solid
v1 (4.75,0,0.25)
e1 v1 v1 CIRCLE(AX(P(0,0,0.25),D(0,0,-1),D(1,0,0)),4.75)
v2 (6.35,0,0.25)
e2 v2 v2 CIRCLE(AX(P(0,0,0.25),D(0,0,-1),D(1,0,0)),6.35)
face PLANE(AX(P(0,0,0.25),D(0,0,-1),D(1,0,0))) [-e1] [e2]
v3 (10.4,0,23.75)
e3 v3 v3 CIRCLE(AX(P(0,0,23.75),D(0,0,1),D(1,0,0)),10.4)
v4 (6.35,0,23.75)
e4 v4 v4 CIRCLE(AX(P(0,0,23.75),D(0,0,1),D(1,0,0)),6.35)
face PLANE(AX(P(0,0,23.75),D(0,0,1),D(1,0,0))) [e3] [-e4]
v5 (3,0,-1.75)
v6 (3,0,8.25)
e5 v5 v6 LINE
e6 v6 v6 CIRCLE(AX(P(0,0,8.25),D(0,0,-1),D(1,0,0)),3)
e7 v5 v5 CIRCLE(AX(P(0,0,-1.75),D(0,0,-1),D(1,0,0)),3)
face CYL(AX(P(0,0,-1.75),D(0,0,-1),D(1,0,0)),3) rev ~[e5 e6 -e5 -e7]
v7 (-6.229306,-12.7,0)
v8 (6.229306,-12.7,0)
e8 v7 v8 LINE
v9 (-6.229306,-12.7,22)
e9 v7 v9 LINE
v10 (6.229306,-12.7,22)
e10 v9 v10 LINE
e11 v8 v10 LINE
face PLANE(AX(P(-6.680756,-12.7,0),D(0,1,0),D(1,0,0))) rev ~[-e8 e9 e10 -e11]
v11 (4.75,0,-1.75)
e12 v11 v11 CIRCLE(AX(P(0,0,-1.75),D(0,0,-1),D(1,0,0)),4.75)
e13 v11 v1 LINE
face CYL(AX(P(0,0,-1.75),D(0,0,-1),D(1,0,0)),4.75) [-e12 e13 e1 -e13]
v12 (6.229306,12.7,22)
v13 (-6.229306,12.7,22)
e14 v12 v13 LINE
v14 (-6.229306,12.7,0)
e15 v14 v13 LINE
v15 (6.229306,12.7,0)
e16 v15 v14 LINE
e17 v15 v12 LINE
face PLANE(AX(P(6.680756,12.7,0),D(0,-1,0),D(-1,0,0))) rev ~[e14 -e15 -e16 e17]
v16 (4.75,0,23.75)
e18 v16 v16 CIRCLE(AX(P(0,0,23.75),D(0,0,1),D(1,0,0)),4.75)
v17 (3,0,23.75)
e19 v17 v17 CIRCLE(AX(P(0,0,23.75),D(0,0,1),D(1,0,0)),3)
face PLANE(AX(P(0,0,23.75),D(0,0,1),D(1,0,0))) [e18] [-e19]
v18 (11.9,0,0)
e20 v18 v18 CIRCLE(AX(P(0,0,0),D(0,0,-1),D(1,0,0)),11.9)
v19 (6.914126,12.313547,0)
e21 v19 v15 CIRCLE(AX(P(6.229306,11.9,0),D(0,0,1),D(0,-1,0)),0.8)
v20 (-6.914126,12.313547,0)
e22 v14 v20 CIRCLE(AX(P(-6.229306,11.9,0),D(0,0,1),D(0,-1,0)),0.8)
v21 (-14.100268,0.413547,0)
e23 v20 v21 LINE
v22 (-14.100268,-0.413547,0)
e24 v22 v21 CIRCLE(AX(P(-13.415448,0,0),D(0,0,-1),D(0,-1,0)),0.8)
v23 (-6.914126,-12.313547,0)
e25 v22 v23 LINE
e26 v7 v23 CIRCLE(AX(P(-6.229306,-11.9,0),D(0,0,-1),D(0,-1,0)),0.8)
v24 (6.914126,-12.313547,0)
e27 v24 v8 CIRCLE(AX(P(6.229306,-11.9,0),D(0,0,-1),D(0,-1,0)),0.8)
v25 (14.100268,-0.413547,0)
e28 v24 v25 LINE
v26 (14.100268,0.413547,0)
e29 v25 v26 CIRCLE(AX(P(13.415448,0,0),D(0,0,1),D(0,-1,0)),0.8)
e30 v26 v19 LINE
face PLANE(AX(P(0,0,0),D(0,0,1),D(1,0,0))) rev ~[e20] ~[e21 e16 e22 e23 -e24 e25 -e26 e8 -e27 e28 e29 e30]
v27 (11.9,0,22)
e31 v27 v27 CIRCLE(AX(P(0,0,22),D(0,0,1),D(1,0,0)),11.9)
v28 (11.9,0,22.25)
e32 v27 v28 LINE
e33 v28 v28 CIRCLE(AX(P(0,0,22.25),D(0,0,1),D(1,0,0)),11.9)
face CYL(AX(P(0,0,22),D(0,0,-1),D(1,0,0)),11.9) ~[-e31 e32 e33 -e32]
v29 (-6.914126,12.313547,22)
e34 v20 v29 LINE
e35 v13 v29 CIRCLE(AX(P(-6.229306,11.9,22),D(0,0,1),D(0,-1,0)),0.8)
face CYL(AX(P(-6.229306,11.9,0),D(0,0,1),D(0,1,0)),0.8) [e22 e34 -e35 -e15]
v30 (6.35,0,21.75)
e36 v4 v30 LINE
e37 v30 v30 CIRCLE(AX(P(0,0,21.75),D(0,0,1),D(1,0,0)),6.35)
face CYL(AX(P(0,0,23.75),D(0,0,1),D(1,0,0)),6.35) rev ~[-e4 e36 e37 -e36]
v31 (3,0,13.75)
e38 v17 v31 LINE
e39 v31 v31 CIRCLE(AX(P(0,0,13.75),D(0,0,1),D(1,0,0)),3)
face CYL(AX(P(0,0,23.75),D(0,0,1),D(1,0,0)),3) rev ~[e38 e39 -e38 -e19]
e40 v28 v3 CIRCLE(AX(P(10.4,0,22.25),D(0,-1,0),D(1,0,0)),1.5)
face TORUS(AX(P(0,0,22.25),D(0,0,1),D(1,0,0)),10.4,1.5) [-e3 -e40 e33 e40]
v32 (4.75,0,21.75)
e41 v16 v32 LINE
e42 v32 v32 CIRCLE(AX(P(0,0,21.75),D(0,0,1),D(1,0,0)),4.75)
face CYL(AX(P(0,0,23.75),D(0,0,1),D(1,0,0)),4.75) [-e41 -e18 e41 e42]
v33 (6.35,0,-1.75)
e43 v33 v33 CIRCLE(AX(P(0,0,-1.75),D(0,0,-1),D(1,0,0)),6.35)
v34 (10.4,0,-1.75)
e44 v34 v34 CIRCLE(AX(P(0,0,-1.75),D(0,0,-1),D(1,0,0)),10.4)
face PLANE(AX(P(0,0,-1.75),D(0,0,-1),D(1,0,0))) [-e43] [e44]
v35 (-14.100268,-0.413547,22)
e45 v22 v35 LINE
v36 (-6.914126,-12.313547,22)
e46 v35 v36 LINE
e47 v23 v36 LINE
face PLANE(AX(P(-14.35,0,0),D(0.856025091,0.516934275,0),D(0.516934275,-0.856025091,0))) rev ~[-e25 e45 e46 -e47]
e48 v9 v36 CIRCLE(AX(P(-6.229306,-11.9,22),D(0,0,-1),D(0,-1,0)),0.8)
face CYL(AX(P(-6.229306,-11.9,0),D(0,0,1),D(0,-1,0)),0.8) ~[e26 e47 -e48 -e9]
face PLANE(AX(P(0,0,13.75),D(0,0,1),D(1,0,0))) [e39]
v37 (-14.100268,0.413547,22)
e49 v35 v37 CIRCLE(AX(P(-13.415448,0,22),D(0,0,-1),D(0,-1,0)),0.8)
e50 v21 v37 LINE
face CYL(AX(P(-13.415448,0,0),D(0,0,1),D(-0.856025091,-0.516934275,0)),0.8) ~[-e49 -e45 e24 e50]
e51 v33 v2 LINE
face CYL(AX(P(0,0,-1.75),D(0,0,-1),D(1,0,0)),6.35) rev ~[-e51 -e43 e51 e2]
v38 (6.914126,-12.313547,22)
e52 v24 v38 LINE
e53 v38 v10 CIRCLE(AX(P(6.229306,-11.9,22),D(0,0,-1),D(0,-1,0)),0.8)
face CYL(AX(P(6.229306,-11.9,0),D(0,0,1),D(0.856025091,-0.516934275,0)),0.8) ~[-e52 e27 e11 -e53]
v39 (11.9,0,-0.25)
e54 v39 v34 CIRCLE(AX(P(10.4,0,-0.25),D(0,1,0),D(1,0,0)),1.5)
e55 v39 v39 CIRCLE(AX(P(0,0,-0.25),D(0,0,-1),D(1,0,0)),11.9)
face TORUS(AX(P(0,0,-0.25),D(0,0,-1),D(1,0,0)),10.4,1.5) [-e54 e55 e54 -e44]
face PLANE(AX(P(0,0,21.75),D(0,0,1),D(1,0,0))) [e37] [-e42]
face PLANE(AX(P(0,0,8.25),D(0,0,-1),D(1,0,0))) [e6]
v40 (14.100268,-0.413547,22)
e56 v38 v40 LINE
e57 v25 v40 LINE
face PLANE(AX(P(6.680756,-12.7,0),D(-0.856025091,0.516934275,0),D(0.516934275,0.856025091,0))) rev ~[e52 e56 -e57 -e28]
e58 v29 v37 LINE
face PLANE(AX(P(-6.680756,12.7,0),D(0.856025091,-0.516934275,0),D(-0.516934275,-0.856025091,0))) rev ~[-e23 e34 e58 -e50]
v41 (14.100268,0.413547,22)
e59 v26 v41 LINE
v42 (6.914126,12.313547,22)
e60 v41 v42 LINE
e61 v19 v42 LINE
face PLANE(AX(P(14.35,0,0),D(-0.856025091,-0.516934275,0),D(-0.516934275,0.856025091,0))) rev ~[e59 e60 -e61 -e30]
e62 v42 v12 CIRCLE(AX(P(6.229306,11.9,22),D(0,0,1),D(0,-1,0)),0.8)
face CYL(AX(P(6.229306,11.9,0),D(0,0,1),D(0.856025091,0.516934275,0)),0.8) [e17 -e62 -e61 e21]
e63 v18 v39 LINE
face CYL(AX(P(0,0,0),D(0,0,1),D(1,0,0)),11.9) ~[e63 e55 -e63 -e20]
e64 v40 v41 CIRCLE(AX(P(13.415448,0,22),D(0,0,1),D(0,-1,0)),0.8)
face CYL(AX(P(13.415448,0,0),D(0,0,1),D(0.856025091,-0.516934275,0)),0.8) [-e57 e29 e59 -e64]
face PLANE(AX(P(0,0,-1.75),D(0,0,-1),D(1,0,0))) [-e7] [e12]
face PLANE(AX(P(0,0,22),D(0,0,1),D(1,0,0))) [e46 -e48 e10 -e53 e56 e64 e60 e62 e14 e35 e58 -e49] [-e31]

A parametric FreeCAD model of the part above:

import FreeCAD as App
import Part
import Sketcher


def edges_at(feature, points):
    """Names of the edges that pass closest to the given points."""
    edges = feature.Shape.Edges
    near = lambda p: min(range(len(edges)), key=lambda i: edges[i].distToShape(Part.Vertex(*p))[0])
    return sorted({f"Edge{near(p) + 1}" for p in points})

doc = App.newDocument("Part")
params = doc.addObject("Spreadsheet::Sheet", "Params")
for row, (alias, value) in enumerate([
    ("pad1_length", "22 mm"),
    ("sketch2_diameter", "23.8 mm"),
    ("pad2_length", "1.75 mm"),
    ("sketch3_diameter", "23.8 mm"),
    ("pad3_length", "1.75 mm"),
    ("sketch4_diameter", "12.7 mm"),
    ("sketch4_diameter2", "9.5 mm"),
    ("pocket1_length", "2 mm"),
    ("sketch5_diameter", "12.7 mm"),
    ("sketch5_diameter2", "9.5 mm"),
    ("pocket2_length", "2 mm"),
    ("sketch6_diameter", "6 mm"),
    ("pocket3_length", "10 mm"),
    ("sketch7_diameter", "6 mm"),
    ("pocket4_length", "10 mm"),
    ("fillet_radius", "1.5 mm"),
    ("fillet2_radius", "0.8 mm"),
], start=1):
    params.set(f"A{row}", alias)
    params.set(f"B{row}", "=" + value)
    params.setAlias(f"B{row}", alias)

body = doc.addObject("PartDesign::Body", "Body")

# Sketch on XY plane
sketch1 = doc.addObject("Sketcher::SketchObject", "Sketch")
body.addObject(sketch1)
sketch1.AttachmentSupport = (doc.XY_Plane, [""])
sketch1.MapMode = "FlatFace"
sketch1.addGeometry(Part.LineSegment(App.Vector(7, -13, 0), App.Vector(14, 0, 0)), False)
sketch1.addGeometry(Part.LineSegment(App.Vector(14, 0, 0), App.Vector(7, 13, 0)), False)
sketch1.addGeometry(Part.LineSegment(App.Vector(7, 13, 0), App.Vector(-7, 13, 0)), False)
sketch1.addGeometry(Part.LineSegment(App.Vector(-7, 13, 0), App.Vector(-14, 0, 0)), False)
sketch1.addGeometry(Part.LineSegment(App.Vector(-14, 0, 0), App.Vector(-7, -13, 0)), False)
sketch1.addGeometry(Part.LineSegment(App.Vector(-7, -13, 0), App.Vector(7, -13, 0)), False)
sketch1.addConstraint(Sketcher.Constraint("Coincident", 0, 2, 1, 1))
sketch1.addConstraint(Sketcher.Constraint("Coincident", 1, 2, 2, 1))
sketch1.addConstraint(Sketcher.Constraint("Coincident", 2, 2, 3, 1))
sketch1.addConstraint(Sketcher.Constraint("Coincident", 3, 2, 4, 1))
sketch1.addConstraint(Sketcher.Constraint("Coincident", 4, 2, 5, 1))
sketch1.addConstraint(Sketcher.Constraint("Coincident", 5, 2, 0, 1))
sketch1.addConstraint(Sketcher.Constraint("Horizontal", 2))
sketch1.addConstraint(Sketcher.Constraint("Horizontal", 5))
sketch1.addConstraint(Sketcher.Constraint("Symmetric", 0, 2, 3, 2, -1, 1))
sketch1.addConstraint(Sketcher.Constraint("Symmetric", 1, 2, 4, 2, -1, 1))
sketch1.addConstraint(Sketcher.Constraint("PointOnObject", 0, 2, -1))
sketch1.addConstraint(Sketcher.Constraint("Parallel", 0, 3))
sketch1.addConstraint(Sketcher.Constraint("Vertical", 2, 2, 4, 2))
sketch1.addConstraint(Sketcher.Constraint("DistanceY", -1, 1, 1, 2, 12.7))
sketch1.addConstraint(Sketcher.Constraint("DistanceX", 3, 2, 0, 2, 28.7))
sketch1.addConstraint(Sketcher.Constraint("DistanceX", 2, 2, 2, 1, 13.361512))
pad1 = doc.addObject("PartDesign::Pad", "Pad")
body.addObject(pad1)
pad1.Profile = sketch1
pad1.setExpression("Length", "Params.pad1_length")

# Sketch on XY plane
sketch2 = doc.addObject("Sketcher::SketchObject", "Sketch001")
body.addObject(sketch2)
sketch2.AttachmentSupport = (doc.XY_Plane, [""])
sketch2.MapMode = "FlatFace"
sketch2.AttachmentOffset = App.Placement(App.Vector(0, 0, 22), App.Rotation())
sketch2.addGeometry(Part.Circle(App.Vector(0, 0, 0), App.Vector(0, 0, 1), 12), False)
sketch2.addConstraint(Sketcher.Constraint("Coincident", 0, 3, -1, 1))
sketch2.addConstraint(Sketcher.Constraint("Diameter", 0, 23.8))
sketch2.setExpression("Constraints[1]", "Params.sketch2_diameter")
pad2 = doc.addObject("PartDesign::Pad", "Pad001")
body.addObject(pad2)
pad2.Profile = sketch2
pad2.setExpression("Length", "Params.pad2_length")

# Sketch on XY plane
sketch3 = doc.addObject("Sketcher::SketchObject", "Sketch002")
body.addObject(sketch3)
sketch3.AttachmentSupport = (doc.XY_Plane, [""])
sketch3.MapMode = "FlatFace"
sketch3.addGeometry(Part.Circle(App.Vector(0, 0, 0), App.Vector(0, 0, 1), 12), False)
sketch3.addConstraint(Sketcher.Constraint("Coincident", 0, 3, -1, 1))
sketch3.addConstraint(Sketcher.Constraint("Diameter", 0, 23.8))
sketch3.setExpression("Constraints[1]", "Params.sketch3_diameter")
pad3 = doc.addObject("PartDesign::Pad", "Pad002")
body.addObject(pad3)
pad3.Profile = sketch3
pad3.setExpression("Length", "Params.pad3_length")
pad3.Reversed = True

# Sketch on XY plane
sketch4 = doc.addObject("Sketcher::SketchObject", "Sketch003")
body.addObject(sketch4)
sketch4.AttachmentSupport = (doc.XY_Plane, [""])
sketch4.MapMode = "FlatFace"
sketch4.AttachmentOffset = App.Placement(App.Vector(0, 0, 23.75), App.Rotation())
sketch4.addGeometry(Part.Circle(App.Vector(0, 0, 0), App.Vector(0, 0, 1), 6.3), False)
sketch4.addGeometry(Part.Circle(App.Vector(0, 0, 0), App.Vector(0, 0, 1), 4.8), False)
sketch4.addConstraint(Sketcher.Constraint("Coincident", 0, 3, -1, 1))
sketch4.addConstraint(Sketcher.Constraint("Coincident", 1, 3, -1, 1))
sketch4.addConstraint(Sketcher.Constraint("Diameter", 0, 12.7))
sketch4.addConstraint(Sketcher.Constraint("Diameter", 1, 9.5))
sketch4.setExpression("Constraints[2]", "Params.sketch4_diameter")
sketch4.setExpression("Constraints[3]", "Params.sketch4_diameter2")
pocket1 = doc.addObject("PartDesign::Pocket", "Pocket")
body.addObject(pocket1)
pocket1.Profile = sketch4
pocket1.setExpression("Length", "Params.pocket1_length")

# Sketch on XY plane
sketch5 = doc.addObject("Sketcher::SketchObject", "Sketch004")
body.addObject(sketch5)
sketch5.AttachmentSupport = (doc.XY_Plane, [""])
sketch5.MapMode = "FlatFace"
sketch5.AttachmentOffset = App.Placement(App.Vector(0, 0, -1.75), App.Rotation())
sketch5.addGeometry(Part.Circle(App.Vector(0, 0, 0), App.Vector(0, 0, 1), 6.3), False)
sketch5.addGeometry(Part.Circle(App.Vector(0, 0, 0), App.Vector(0, 0, 1), 4.8), False)
sketch5.addConstraint(Sketcher.Constraint("Coincident", 0, 3, -1, 1))
sketch5.addConstraint(Sketcher.Constraint("Coincident", 1, 3, -1, 1))
sketch5.addConstraint(Sketcher.Constraint("Diameter", 0, 12.7))
sketch5.addConstraint(Sketcher.Constraint("Diameter", 1, 9.5))
sketch5.setExpression("Constraints[2]", "Params.sketch5_diameter")
sketch5.setExpression("Constraints[3]", "Params.sketch5_diameter2")
pocket2 = doc.addObject("PartDesign::Pocket", "Pocket001")
body.addObject(pocket2)
pocket2.Profile = sketch5
pocket2.setExpression("Length", "Params.pocket2_length")
pocket2.Reversed = True

# Sketch on XY plane
sketch6 = doc.addObject("Sketcher::SketchObject", "Sketch005")
body.addObject(sketch6)
sketch6.AttachmentSupport = (doc.XY_Plane, [""])
sketch6.MapMode = "FlatFace"
sketch6.AttachmentOffset = App.Placement(App.Vector(0, 0, -1.75), App.Rotation())
sketch6.addGeometry(Part.Circle(App.Vector(0, 0, 0), App.Vector(0, 0, 1), 3), False)
sketch6.addConstraint(Sketcher.Constraint("Coincident", 0, 3, -1, 1))
sketch6.addConstraint(Sketcher.Constraint("Diameter", 0, 6.0))
sketch6.setExpression("Constraints[1]", "Params.sketch6_diameter")
pocket3 = doc.addObject("PartDesign::Pocket", "Pocket002")
body.addObject(pocket3)
pocket3.Profile = sketch6
pocket3.setExpression("Length", "Params.pocket3_length")
pocket3.Reversed = True

# Sketch on XY plane
sketch7 = doc.addObject("Sketcher::SketchObject", "Sketch006")
body.addObject(sketch7)
sketch7.AttachmentSupport = (doc.XY_Plane, [""])
sketch7.MapMode = "FlatFace"
sketch7.AttachmentOffset = App.Placement(App.Vector(0, 0, 23.75), App.Rotation())
sketch7.addGeometry(Part.Circle(App.Vector(0, 0, 0), App.Vector(0, 0, 1), 3), False)
sketch7.addConstraint(Sketcher.Constraint("Coincident", 0, 3, -1, 1))
sketch7.addConstraint(Sketcher.Constraint("Diameter", 0, 6.0))
sketch7.setExpression("Constraints[1]", "Params.sketch7_diameter")
pocket4 = doc.addObject("PartDesign::Pocket", "Pocket003")
body.addObject(pocket4)
pocket4.Profile = sketch7
pocket4.setExpression("Length", "Params.pocket4_length")
doc.recompute()

fillet = doc.addObject("PartDesign::Fillet", "Fillet")
body.addObject(fillet)
fillet.Base = (pocket4, edges_at(pocket4, [(-11.9, 0, 23.75), (-11.9, 0, -1.75)]))
fillet.setExpression("Radius", "Params.fillet_radius")
doc.recompute()

fillet2 = doc.addObject("PartDesign::Fillet", "Fillet001")
body.addObject(fillet2)
fillet2.Base = (fillet, edges_at(fillet, [
    (-6.681, 12.7, 11),
    (6.681, 12.7, 11),
    (14.35, 0, 11),
    (6.681, -12.7, 11),
    (-6.681, -12.7, 11),
    (-14.35, 0, 11),
]))
fillet2.setExpression("Radius", "Params.fillet2_radius")

doc.recompute()
